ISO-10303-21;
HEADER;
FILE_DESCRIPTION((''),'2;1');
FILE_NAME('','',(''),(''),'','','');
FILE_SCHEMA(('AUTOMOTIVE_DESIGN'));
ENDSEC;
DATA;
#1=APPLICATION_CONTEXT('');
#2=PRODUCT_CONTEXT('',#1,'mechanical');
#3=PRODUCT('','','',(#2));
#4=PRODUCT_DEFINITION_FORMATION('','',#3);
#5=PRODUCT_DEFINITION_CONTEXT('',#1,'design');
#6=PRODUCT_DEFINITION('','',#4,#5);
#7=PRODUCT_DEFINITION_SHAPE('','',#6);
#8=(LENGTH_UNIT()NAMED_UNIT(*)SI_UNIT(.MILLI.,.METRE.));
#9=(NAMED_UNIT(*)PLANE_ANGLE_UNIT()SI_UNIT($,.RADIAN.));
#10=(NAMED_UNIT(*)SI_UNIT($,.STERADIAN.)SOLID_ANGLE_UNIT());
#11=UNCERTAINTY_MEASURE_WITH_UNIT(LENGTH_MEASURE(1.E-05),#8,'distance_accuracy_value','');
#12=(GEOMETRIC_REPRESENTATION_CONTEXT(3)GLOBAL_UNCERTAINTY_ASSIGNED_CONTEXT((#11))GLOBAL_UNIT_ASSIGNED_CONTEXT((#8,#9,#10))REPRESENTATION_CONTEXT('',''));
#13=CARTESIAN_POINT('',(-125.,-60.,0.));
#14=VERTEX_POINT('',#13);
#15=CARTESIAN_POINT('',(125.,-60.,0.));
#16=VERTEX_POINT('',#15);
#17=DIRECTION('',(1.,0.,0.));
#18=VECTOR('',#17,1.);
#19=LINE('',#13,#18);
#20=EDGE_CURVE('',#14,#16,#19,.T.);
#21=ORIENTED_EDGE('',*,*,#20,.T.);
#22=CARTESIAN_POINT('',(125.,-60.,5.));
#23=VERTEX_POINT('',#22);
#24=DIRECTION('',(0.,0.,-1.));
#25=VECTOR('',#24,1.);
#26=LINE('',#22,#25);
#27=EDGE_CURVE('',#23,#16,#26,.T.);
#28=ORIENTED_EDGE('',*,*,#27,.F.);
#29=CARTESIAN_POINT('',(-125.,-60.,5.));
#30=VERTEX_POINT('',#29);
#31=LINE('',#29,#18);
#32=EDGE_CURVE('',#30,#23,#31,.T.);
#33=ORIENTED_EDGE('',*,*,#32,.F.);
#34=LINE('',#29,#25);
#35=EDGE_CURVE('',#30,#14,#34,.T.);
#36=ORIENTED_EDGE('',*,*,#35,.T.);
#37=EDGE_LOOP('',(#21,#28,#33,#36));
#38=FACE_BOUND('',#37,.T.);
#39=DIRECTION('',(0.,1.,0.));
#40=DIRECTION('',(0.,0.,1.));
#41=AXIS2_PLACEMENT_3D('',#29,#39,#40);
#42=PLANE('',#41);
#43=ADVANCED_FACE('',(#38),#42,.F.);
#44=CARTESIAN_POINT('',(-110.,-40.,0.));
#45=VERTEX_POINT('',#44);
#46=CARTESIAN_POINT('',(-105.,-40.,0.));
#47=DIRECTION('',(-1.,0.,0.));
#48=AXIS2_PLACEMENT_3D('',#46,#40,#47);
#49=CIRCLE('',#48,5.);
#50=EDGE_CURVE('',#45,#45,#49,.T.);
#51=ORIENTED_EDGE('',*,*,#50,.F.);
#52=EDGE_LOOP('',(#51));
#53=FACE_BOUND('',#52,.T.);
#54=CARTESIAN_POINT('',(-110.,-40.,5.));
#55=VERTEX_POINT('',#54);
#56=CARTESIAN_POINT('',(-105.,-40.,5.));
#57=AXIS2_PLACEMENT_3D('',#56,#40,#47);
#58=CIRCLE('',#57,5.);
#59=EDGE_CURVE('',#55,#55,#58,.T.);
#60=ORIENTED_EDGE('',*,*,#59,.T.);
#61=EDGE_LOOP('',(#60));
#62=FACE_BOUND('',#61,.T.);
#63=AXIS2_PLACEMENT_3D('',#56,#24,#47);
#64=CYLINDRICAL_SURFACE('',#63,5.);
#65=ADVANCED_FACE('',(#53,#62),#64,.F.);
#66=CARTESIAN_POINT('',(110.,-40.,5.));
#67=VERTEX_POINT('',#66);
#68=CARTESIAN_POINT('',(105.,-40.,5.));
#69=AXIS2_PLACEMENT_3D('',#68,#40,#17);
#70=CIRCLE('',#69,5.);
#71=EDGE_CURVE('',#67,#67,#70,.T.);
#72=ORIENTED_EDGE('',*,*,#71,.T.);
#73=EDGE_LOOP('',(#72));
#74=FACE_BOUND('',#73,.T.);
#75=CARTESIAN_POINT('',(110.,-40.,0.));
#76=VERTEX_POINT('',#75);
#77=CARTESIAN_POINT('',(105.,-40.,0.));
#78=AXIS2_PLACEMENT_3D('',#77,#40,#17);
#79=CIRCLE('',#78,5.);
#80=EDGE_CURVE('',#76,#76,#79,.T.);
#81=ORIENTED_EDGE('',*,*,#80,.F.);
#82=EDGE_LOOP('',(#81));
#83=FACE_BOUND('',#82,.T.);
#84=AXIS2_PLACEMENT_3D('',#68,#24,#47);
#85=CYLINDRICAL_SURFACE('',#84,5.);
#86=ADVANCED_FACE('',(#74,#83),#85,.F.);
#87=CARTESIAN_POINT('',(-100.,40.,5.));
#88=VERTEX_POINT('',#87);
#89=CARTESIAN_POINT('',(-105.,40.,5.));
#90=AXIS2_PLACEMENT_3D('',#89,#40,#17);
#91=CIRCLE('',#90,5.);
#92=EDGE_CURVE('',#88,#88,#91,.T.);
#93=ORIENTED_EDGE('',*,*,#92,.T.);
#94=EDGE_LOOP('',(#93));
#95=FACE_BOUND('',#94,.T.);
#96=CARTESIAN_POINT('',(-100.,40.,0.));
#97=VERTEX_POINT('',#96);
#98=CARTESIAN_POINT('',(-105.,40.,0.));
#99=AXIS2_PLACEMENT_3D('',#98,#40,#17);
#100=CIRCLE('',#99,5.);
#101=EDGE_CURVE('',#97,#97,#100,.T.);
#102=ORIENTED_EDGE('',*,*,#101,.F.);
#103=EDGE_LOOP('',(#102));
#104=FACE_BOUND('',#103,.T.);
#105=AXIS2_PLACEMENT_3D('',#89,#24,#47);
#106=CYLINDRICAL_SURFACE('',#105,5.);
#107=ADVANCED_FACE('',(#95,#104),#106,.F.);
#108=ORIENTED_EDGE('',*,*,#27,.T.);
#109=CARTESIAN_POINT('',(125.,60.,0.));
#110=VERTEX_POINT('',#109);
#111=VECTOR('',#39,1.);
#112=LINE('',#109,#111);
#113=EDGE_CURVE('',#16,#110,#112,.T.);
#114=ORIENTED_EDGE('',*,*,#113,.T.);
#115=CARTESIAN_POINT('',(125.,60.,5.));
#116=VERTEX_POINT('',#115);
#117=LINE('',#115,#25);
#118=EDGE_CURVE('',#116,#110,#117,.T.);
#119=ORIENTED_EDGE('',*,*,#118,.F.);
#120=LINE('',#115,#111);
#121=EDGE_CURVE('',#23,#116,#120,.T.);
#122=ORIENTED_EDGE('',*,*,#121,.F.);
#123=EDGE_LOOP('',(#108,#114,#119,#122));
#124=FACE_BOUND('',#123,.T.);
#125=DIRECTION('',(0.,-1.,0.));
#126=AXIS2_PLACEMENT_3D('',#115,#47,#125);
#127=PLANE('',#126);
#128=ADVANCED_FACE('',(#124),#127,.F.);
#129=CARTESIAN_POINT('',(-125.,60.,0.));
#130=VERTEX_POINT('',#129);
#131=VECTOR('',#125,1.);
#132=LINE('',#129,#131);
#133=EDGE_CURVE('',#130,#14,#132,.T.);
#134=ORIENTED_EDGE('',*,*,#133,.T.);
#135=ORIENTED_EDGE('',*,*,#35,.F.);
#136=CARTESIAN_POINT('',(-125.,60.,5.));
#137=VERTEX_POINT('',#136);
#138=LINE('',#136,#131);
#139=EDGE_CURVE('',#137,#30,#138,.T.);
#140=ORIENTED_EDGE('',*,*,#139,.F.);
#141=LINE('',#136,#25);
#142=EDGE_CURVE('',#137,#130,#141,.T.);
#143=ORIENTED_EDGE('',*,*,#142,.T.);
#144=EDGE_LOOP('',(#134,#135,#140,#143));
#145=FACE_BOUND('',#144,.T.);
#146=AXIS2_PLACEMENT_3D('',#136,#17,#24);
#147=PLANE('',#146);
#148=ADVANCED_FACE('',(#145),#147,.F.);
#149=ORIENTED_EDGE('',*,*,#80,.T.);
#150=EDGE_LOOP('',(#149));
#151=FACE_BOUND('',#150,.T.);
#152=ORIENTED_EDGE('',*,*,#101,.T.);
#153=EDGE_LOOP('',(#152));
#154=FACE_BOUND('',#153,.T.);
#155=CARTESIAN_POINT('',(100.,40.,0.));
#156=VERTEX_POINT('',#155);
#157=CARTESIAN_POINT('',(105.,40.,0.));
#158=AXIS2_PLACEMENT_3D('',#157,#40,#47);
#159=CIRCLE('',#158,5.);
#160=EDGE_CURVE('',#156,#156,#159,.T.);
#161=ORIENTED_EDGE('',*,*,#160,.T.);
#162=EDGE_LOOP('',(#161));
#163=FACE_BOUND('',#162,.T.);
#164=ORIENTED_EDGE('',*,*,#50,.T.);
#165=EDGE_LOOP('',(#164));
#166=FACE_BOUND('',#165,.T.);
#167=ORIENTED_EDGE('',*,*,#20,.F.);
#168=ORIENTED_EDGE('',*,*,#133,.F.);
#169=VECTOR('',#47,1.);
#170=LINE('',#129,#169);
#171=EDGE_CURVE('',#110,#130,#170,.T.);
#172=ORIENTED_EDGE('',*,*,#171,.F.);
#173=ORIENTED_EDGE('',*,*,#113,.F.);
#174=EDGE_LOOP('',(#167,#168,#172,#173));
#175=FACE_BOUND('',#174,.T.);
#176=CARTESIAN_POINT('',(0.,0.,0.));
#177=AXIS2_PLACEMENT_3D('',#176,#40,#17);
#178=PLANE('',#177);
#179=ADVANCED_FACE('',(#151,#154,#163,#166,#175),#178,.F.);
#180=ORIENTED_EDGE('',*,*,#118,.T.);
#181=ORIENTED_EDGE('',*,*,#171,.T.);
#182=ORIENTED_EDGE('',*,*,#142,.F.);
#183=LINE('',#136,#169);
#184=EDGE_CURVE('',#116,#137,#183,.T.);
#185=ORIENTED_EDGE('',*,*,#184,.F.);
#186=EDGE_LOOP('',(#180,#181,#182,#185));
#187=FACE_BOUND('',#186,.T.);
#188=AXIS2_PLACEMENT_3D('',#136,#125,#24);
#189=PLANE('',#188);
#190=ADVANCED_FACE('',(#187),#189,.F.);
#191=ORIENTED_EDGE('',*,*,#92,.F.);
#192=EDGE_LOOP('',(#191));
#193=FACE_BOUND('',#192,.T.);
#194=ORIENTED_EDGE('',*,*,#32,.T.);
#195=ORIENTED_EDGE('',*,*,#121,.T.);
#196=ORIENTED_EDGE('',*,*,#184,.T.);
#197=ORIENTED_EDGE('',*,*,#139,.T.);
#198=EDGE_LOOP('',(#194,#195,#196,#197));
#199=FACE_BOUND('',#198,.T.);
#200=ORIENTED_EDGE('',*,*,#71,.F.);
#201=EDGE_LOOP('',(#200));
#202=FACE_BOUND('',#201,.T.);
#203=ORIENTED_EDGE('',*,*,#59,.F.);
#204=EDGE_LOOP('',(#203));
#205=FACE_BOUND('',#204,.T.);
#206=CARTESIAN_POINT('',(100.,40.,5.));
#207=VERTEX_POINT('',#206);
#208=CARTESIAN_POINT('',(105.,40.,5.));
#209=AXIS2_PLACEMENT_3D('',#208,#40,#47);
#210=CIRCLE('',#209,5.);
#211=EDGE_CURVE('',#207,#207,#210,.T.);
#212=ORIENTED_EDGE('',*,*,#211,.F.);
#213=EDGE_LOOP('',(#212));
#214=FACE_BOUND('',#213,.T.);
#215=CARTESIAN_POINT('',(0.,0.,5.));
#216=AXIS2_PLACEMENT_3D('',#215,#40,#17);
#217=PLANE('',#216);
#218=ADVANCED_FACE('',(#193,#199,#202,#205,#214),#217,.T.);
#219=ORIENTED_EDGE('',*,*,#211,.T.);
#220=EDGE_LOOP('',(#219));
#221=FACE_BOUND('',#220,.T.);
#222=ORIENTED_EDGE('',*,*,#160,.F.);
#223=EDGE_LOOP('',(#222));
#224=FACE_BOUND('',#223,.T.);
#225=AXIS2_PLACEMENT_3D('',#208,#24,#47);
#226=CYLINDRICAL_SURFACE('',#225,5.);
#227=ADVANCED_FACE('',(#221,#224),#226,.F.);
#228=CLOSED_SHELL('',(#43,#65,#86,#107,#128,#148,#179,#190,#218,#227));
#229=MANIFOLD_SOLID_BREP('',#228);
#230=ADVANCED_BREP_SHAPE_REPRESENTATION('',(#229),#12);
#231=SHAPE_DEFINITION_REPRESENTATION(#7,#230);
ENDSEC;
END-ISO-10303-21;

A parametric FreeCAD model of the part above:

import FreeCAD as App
import Part
import Sketcher
Q = App.Units.Quantity

doc = App.newDocument("Part")
params = doc.addObject("Spreadsheet::Sheet", "Params")
for row, (alias, value) in enumerate([
    ("sketch1_diameter", "10 mm"),
    ("sketch1_width", "250 mm"),
    ("sketch1_height", "120 mm"),
    ("pad1_length", "5 mm"),
], start=1):
    params.set(f"A{row}", alias)
    params.set(f"B{row}", "=" + value)
    params.setAlias(f"B{row}", alias)

body = doc.addObject("PartDesign::Body", "Body")

# Sketch on XY plane
sketch1 = doc.addObject("Sketcher::SketchObject", "Sketch")
body.addObject(sketch1)
sketch1.AttachmentSupport = (doc.XY_Plane, [""])
sketch1.MapMode = "FlatFace"
sketch1.addGeometry(Part.LineSegment(App.Vector(-125, 60, 0), App.Vector(-125, -60, 0)), False)
sketch1.addGeometry(Part.LineSegment(App.Vector(-125, -60, 0), App.Vector(125, -60, 0)), False)
sketch1.addGeometry(Part.LineSegment(App.Vector(125, -60, 0), App.Vector(125, 60, 0)), False)
sketch1.addGeometry(Part.LineSegment(App.Vector(125, 60, 0), App.Vector(-125, 60, 0)), False)
sketch1.addGeometry(Part.Circle(App.Vector(-105, -40, 0), App.Vector(0, 0, 1), 5), False)
sketch1.addGeometry(Part.Circle(App.Vector(105, -40, 0), App.Vector(0, 0, 1), 5), False)
sketch1.addGeometry(Part.Circle(App.Vector(-105, 40, 0), App.Vector(0, 0, 1), 5), False)
sketch1.addGeometry(Part.Circle(App.Vector(105, 40, 0), App.Vector(0, 0, 1), 5), False)
sketch1.addConstraint(Sketcher.Constraint("Coincident", 0, 2, 1, 1))
sketch1.addConstraint(Sketcher.Constraint("Coincident", 1, 2, 2, 1))
sketch1.addConstraint(Sketcher.Constraint("Coincident", 2, 2, 3, 1))
sketch1.addConstraint(Sketcher.Constraint("Coincident", 3, 2, 0, 1))
sketch1.addConstraint(Sketcher.Constraint("Vertical", 0))
sketch1.addConstraint(Sketcher.Constraint("Horizontal", 1))
sketch1.addConstraint(Sketcher.Constraint("Vertical", 2))
sketch1.addConstraint(Sketcher.Constraint("Horizontal", 3))
sketch1.addConstraint(Sketcher.Constraint("Equal", 4, 5))
sketch1.addConstraint(Sketcher.Constraint("Equal", 5, 6))
sketch1.addConstraint(Sketcher.Constraint("Equal", 6, 7))
sketch1.addConstraint(Sketcher.Constraint("Symmetric", 5, 3, 6, 3, -1, 1))
sketch1.addConstraint(Sketcher.Constraint("Symmetric", 4, 3, 7, 3, -1, 1))
sketch1.addConstraint(Sketcher.Constraint("Symmetric", 0, 2, 2, 2, -1, 1))
sketch1.addConstraint(Sketcher.Constraint("Symmetric", 4, 3, 5, 3, -2))
sketch1.addConstraint(Sketcher.Constraint("Diameter", 4, Q("10 mm")))
sketch1.addConstraint(Sketcher.Constraint("DistanceX", 1, 1, 1, 2, Q("250 mm")))
sketch1.addConstraint(Sketcher.Constraint("DistanceY", 0, 2, 0, 1, Q("120 mm")))
sketch1.addConstraint(Sketcher.Constraint("DistanceX", 4, 3, -1, 1, Q("105 mm")))
sketch1.addConstraint(Sketcher.Constraint("DistanceY", 4, 3, -1, 1, Q("40 mm")))
sketch1.setExpression("Constraints[15]", "Params.sketch1_diameter")
sketch1.setExpression("Constraints[16]", "Params.sketch1_width")
sketch1.setExpression("Constraints[17]", "Params.sketch1_height")
pad1 = doc.addObject("PartDesign::Pad", "Pad")
body.addObject(pad1)
pad1.Profile = sketch1
pad1.setExpression("Length", "Params.pad1_length")

doc.recompute()
